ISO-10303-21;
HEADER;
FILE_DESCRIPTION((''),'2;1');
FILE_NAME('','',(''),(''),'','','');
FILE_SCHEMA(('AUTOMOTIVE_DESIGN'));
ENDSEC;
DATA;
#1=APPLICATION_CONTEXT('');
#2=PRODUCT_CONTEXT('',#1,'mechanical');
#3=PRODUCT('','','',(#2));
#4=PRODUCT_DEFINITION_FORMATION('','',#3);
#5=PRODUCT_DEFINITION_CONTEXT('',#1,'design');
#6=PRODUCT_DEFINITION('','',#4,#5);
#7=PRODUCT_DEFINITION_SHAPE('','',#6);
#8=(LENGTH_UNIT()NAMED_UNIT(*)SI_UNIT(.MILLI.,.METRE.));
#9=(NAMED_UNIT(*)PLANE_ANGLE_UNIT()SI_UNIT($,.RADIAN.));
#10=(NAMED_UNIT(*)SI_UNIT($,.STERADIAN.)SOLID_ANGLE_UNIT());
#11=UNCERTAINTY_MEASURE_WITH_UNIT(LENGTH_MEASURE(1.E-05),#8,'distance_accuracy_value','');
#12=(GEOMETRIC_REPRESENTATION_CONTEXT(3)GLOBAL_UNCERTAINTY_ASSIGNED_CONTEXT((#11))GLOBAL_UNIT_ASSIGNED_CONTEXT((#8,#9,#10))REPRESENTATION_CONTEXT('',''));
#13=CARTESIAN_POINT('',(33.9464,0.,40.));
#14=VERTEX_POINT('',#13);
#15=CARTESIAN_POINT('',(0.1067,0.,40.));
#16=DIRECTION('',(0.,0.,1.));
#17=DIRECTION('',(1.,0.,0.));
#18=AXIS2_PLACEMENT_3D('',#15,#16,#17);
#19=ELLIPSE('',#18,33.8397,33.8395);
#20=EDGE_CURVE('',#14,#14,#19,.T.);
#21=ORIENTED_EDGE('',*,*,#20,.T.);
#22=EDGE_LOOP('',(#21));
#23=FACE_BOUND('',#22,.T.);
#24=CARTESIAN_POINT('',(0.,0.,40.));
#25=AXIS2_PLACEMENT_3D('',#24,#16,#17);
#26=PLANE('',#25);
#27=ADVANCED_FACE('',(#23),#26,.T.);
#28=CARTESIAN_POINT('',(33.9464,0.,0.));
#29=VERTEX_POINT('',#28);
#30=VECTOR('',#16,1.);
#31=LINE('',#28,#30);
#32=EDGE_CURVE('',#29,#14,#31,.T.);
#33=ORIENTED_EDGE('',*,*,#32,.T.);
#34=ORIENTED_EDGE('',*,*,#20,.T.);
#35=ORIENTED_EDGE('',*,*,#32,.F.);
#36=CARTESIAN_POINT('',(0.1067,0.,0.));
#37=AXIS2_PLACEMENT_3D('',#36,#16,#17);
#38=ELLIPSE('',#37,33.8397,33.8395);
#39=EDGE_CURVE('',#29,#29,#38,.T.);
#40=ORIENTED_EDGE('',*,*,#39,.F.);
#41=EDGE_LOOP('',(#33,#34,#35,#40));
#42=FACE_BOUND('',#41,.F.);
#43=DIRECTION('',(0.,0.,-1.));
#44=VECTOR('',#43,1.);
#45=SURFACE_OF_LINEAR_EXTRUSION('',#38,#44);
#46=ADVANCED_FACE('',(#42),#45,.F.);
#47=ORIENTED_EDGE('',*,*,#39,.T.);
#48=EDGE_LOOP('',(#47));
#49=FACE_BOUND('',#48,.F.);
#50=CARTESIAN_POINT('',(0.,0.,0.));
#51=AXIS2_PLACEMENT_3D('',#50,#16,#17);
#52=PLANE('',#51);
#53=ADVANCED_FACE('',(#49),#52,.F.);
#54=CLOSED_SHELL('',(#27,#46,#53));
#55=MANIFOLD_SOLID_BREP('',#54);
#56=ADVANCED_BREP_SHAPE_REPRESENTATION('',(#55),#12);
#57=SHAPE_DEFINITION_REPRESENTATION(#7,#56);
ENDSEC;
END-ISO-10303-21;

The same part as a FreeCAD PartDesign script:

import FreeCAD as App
import Part
import Sketcher

doc = App.newDocument("Part")
body = doc.addObject("PartDesign::Body", "Body")

sketch1 = body.newObject("Sketcher::SketchObject", "Sketch")
sketch1.AttachmentSupport = (doc.getObject("XY_Plane"), [""])
sketch1.MapMode = "FlatFace"
sketch1.addGeometry(Part.Ellipse(App.Vector(33.9464, 0, 0), App.Vector(0.1067, 33.8395, 0), App.Vector(0.1067, 0, 0)), False)
sketch1.addConstraint(Sketcher.Constraint("Block", 0))
pad1 = body.newObject("PartDesign::Pad", "Pad")
pad1.Profile = sketch1
pad1.Length = 40

doc.recompute()
